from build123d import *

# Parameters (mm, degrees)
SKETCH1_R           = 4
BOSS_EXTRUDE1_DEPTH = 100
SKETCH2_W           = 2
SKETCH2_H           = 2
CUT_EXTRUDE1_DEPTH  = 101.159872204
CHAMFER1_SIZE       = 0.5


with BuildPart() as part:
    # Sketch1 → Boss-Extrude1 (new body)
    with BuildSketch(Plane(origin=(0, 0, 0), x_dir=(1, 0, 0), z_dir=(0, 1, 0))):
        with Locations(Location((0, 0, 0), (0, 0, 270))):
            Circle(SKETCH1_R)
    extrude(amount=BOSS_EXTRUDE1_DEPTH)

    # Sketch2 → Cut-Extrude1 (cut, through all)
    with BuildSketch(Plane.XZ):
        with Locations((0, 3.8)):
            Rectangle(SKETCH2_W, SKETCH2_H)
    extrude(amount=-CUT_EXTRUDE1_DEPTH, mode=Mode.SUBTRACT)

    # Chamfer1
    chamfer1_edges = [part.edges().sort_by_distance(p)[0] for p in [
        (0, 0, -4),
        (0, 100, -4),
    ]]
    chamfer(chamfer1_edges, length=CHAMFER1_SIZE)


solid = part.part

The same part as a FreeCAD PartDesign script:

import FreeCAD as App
import Part
import Sketcher

V = App.Vector


def edges_at(feature, points):
    """Names of the edges that pass closest to the given points."""
    edges = feature.Shape.Edges
    near = lambda p: min(range(len(edges)), key=lambda i: edges[i].distToShape(Part.Vertex(*p))[0])
    return sorted({f"Edge{near(p) + 1}" for p in points})

doc = App.newDocument("Part")
params = doc.addObject("Spreadsheet::Sheet", "Params")
for row, (alias, value) in enumerate([
    ("sketch1_diameter", "8 mm"),
    ("pad1_length", "100 mm"),
    ("sketch2_width", "2 mm"),
    ("chamfer_size", "0.5 mm"),
], start=1):
    params.set(f"A{row}", alias)
    params.set(f"B{row}", "=" + value)
    params.setAlias(f"B{row}", alias)

body = doc.addObject("PartDesign::Body", "Body")

# Sketch on XZ plane
sketch1 = body.newObject("Sketcher::SketchObject", "Sketch")
sketch1.AttachmentSupport = (doc.getObject("XZ_Plane"), [""])
sketch1.MapMode = "FlatFace"
sketch1.addGeometry(Part.Circle(V(0, 0, 0), V(0, 0, 1), 4), False)
sketch1.addConstraint([
    Sketcher.Constraint("Coincident", 0, 3, -1, 1),
    Sketcher.Constraint("Diameter", 0, 8.0),
])
sketch1.setExpression("Constraints[1]", "Params.sketch1_diameter")
pad1 = body.newObject("PartDesign::Pad", "Pad")
pad1.Profile = sketch1
pad1.setExpression("Length", "Params.pad1_length")
pad1.Reversed = True

# Sketch on XZ plane
sketch2 = body.newObject("Sketcher::SketchObject", "Sketch001")
sketch2.AttachmentSupport = (doc.getObject("XZ_Plane"), [""])
sketch2.MapMode = "FlatFace"
sketch2.addGeometry([
    Part.LineSegment(V(-1, 4.8, 0), V(-1, 2.8, 0)),
    Part.LineSegment(V(-1, 2.8, 0), V(1, 2.8, 0)),
    Part.LineSegment(V(1, 2.8, 0), V(1, 4.8, 0)),
    Part.LineSegment(V(1, 4.8, 0), V(-1, 4.8, 0)),
], False)
sketch2.addConstraint([
    Sketcher.Constraint("Coincident", 0, 2, 1, 1),
    Sketcher.Constraint("Coincident", 1, 2, 2, 1),
    Sketcher.Constraint("Coincident", 2, 2, 3, 1),
    Sketcher.Constraint("Coincident", 3, 2, 0, 1),
    Sketcher.Constraint("Vertical", 0),
    Sketcher.Constraint("Horizontal", 1),
    Sketcher.Constraint("Vertical", 2),
    Sketcher.Constraint("Horizontal", 3),
    Sketcher.Constraint("Equal", 3, 0),
    Sketcher.Constraint("DistanceX", 1, 1, 1, 2, 2.0),
    Sketcher.Constraint("DistanceX", 0, 2, -1, 1, 1.0),
    Sketcher.Constraint("DistanceY", -1, 1, 0, 2, 2.8),
])
sketch2.setExpression("Constraints[9]", "Params.sketch2_width")
pocket1 = body.newObject("PartDesign::Pocket", "Pocket")
pocket1.Profile = sketch2
pocket1.Type = "ThroughAll"
doc.recompute()

chamfer = body.newObject("PartDesign::Chamfer", "Chamfer")
chamfer.Base = (pocket1, edges_at(pocket1, [(0, 0, -4), (0, 100, -4)]))
chamfer.setExpression("Size", "Params.chamfer_size")

doc.recompute()
